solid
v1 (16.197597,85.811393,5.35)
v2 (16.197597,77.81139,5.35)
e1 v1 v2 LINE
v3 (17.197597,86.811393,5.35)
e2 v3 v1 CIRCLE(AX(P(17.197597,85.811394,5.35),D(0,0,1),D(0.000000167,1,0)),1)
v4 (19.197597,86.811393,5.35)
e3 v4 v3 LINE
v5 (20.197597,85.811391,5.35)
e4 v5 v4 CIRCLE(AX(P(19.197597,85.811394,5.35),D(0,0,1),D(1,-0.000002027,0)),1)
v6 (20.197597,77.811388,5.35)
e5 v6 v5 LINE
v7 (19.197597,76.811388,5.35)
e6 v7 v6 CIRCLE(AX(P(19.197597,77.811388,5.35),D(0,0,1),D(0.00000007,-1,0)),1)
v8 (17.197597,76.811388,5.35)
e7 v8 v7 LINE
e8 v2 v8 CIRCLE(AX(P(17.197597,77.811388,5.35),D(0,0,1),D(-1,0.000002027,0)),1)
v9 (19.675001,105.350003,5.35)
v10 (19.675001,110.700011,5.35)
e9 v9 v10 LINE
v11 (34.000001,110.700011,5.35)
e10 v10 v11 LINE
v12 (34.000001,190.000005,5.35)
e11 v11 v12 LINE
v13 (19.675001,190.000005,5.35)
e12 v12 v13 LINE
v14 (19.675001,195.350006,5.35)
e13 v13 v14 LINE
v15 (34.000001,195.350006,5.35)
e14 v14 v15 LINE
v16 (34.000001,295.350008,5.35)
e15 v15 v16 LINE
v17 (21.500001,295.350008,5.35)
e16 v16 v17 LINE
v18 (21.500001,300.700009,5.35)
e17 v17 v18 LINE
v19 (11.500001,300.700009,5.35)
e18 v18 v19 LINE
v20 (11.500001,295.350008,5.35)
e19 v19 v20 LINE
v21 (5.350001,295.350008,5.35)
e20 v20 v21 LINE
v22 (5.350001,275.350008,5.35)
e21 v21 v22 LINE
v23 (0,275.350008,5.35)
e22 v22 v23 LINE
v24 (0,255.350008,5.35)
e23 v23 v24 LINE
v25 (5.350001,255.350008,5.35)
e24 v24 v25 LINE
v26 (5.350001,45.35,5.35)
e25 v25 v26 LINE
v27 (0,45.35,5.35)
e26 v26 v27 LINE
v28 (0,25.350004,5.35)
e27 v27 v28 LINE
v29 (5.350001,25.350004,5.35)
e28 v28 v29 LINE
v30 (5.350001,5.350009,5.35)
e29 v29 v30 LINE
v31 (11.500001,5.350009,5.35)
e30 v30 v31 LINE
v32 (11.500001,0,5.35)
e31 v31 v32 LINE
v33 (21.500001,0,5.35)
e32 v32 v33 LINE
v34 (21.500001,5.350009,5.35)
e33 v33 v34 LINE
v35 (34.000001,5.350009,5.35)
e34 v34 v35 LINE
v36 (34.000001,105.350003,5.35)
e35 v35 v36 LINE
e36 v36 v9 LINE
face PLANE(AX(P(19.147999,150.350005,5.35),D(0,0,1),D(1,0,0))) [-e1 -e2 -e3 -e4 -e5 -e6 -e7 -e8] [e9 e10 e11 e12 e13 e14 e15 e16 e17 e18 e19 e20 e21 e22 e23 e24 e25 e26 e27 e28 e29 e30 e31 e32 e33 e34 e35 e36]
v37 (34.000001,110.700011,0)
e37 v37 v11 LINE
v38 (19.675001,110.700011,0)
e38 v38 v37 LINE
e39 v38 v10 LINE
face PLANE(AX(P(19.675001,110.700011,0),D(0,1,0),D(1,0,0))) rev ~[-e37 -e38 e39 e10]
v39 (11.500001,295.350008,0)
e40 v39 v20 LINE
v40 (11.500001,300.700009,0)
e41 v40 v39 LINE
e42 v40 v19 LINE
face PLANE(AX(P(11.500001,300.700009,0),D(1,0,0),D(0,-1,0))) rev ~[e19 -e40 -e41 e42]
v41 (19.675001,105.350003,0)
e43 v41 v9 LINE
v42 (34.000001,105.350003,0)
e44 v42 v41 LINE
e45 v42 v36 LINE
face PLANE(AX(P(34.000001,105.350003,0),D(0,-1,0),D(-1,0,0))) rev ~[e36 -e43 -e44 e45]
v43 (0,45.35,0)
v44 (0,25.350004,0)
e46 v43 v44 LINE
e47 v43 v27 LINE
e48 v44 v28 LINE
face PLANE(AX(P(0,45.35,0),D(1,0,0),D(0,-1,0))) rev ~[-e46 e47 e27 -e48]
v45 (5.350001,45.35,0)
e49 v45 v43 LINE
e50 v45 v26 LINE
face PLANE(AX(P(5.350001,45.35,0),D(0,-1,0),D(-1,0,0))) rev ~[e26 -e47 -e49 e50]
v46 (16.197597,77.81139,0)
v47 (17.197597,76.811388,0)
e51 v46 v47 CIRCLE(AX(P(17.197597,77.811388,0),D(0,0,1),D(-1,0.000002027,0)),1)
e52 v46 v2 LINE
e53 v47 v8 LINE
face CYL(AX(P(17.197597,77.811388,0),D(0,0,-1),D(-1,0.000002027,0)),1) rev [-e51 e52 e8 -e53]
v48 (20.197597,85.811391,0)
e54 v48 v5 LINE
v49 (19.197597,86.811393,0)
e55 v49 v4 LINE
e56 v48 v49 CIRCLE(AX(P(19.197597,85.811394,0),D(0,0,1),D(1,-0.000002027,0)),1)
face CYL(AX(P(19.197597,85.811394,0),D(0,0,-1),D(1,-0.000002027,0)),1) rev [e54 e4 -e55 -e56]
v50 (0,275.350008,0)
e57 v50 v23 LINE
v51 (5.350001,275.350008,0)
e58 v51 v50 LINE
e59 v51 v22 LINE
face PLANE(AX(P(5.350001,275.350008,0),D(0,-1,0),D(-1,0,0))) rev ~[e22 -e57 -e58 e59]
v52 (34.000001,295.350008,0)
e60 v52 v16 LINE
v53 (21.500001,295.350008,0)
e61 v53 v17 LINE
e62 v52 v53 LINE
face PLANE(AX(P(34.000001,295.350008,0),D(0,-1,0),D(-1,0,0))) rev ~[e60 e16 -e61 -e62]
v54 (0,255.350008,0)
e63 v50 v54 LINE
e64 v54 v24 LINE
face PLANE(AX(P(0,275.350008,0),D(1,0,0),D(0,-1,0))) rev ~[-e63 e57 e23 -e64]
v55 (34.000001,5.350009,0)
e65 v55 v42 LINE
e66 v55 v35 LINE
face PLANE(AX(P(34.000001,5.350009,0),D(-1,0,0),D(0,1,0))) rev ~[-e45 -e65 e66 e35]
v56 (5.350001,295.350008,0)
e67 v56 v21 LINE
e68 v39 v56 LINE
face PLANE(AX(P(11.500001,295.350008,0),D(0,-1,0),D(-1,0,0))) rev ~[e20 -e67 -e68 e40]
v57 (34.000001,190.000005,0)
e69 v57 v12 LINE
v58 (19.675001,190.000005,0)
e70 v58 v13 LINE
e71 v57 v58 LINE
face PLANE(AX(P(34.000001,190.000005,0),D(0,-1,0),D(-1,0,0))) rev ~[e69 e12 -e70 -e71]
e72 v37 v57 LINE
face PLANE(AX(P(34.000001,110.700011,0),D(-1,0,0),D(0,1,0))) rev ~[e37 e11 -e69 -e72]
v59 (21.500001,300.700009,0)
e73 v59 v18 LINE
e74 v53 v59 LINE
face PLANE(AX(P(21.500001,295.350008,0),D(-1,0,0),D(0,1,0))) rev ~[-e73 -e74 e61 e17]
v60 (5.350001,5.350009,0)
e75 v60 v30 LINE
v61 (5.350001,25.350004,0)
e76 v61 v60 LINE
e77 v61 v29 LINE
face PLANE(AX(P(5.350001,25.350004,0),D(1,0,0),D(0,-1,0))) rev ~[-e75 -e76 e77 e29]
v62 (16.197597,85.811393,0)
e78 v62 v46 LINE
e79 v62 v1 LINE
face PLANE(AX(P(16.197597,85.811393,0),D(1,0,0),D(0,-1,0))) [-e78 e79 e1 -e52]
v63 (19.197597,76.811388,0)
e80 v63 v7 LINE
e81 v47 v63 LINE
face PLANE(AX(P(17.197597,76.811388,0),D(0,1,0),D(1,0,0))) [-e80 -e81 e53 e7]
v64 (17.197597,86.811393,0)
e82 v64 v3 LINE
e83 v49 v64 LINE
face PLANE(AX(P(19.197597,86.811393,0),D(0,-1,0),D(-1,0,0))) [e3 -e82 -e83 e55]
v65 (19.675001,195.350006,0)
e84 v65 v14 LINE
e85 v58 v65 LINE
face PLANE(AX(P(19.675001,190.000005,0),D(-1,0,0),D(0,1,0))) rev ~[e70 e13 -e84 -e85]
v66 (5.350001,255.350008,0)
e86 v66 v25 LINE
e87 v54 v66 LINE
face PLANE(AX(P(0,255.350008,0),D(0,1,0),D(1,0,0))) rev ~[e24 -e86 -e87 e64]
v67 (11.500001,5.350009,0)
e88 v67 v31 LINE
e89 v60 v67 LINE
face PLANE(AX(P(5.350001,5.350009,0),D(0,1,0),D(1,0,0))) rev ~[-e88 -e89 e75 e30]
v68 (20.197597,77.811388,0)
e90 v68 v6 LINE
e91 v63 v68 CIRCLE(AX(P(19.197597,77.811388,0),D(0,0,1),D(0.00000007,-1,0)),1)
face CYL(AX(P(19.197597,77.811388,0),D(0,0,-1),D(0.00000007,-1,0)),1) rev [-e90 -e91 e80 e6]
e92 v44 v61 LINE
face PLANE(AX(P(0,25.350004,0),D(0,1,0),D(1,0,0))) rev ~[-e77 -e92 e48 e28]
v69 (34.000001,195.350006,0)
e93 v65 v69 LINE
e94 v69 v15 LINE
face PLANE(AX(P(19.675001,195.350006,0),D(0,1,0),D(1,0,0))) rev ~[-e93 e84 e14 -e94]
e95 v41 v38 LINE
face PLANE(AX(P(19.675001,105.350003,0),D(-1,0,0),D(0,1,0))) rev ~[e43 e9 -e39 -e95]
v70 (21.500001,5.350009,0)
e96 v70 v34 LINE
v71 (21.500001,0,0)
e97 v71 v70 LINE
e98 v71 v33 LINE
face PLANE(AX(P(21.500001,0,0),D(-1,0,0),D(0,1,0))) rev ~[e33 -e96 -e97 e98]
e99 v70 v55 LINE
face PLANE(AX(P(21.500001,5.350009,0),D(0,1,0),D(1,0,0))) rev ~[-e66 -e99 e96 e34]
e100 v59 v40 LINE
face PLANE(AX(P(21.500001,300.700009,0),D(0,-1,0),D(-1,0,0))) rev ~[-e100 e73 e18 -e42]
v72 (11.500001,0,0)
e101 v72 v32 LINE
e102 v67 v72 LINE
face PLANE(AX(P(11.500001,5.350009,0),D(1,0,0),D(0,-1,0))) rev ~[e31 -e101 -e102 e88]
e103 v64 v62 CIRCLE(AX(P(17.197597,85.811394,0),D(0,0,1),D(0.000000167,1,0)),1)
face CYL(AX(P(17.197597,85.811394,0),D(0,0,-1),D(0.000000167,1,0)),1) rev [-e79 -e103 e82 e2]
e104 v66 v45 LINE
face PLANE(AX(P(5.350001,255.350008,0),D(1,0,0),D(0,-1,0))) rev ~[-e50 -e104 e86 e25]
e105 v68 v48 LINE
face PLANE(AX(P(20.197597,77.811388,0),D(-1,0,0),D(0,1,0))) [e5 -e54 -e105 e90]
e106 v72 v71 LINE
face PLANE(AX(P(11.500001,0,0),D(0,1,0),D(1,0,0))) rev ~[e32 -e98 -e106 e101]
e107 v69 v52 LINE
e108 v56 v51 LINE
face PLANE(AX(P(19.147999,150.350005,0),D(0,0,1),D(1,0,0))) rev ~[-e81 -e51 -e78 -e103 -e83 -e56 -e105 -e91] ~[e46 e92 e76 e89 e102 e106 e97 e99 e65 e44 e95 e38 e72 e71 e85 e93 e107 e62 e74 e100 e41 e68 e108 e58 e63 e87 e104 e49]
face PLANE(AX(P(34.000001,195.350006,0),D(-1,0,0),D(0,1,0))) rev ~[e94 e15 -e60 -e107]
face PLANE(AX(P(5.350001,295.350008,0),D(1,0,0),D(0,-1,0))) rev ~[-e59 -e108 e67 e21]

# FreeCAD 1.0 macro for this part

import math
import FreeCAD as App
import Part
import Sketcher
from FreeCAD import Vector
Q = App.Units.Quantity

doc = App.newDocument("Part")
body = doc.addObject("PartDesign::Body", "Body")

sketch1 = doc.addObject("Sketcher::SketchObject", "Sketch")
body.addObject(sketch1)
sketch1.AttachmentSupport = (doc.XY_Plane, [""])
sketch1.MapMode = "FlatFace"
sketch1.addGeometry([
    Part.LineSegment(Vector(0, 25.350004, 0), Vector(5.350001, 25.350004, 0)),
    Part.LineSegment(Vector(5.350001, 25.350004, 0), Vector(5.350001, 5.350009, 0)),
    Part.LineSegment(Vector(5.350001, 5.350009, 0), Vector(11.500001, 5.350009, 0)),
    Part.LineSegment(Vector(11.500001, 5.350009, 0), Vector(11.500001, 0, 0)),
    Part.LineSegment(Vector(11.500001, 0, 0), Vector(21.500001, 0, 0)),
    Part.LineSegment(Vector(21.500001, 0, 0), Vector(21.500001, 5.350009, 0)),
    Part.LineSegment(Vector(21.500001, 5.350009, 0), Vector(34.000001, 5.350009, 0)),
    Part.LineSegment(Vector(34.000001, 5.350009, 0), Vector(34.000001, 105.350003, 0)),
    Part.LineSegment(Vector(34.000001, 105.350003, 0), Vector(19.675001, 105.350003, 0)),
    Part.LineSegment(Vector(19.675001, 105.350003, 0), Vector(19.675001, 110.700011, 0)),
    Part.LineSegment(Vector(19.675001, 110.700011, 0), Vector(34.000001, 110.700011, 0)),
    Part.LineSegment(Vector(34.000001, 110.700011, 0), Vector(34.000001, 190.000005, 0)),
    Part.LineSegment(Vector(34.000001, 190.000005, 0), Vector(19.675001, 190.000005, 0)),
    Part.LineSegment(Vector(19.675001, 190.000005, 0), Vector(19.675001, 195.350006, 0)),
    Part.LineSegment(Vector(19.675001, 195.350006, 0), Vector(34.000001, 195.350006, 0)),
    Part.LineSegment(Vector(34.000001, 195.350006, 0), Vector(34.000001, 295.350008, 0)),
    Part.LineSegment(Vector(34.000001, 295.350008, 0), Vector(21.500001, 295.350008, 0)),
    Part.LineSegment(Vector(21.500001, 295.350008, 0), Vector(21.500001, 300.700009, 0)),
    Part.LineSegment(Vector(21.500001, 300.700009, 0), Vector(11.500001, 300.700009, 0)),
    Part.LineSegment(Vector(11.500001, 300.700009, 0), Vector(11.500001, 295.350008, 0)),
    Part.LineSegment(Vector(11.500001, 295.350008, 0), Vector(5.350001, 295.350008, 0)),
    Part.LineSegment(Vector(5.350001, 295.350008, 0), Vector(5.350001, 275.350008, 0)),
    Part.LineSegment(Vector(5.350001, 275.350008, 0), Vector(0, 275.350008, 0)),
    Part.LineSegment(Vector(0, 275.350008, 0), Vector(0, 255.350008, 0)),
    Part.LineSegment(Vector(0, 255.350008, 0), Vector(5.350001, 255.350008, 0)),
    Part.LineSegment(Vector(5.350001, 255.350008, 0), Vector(5.350001, 45.35, 0)),
    Part.LineSegment(Vector(5.350001, 45.35, 0), Vector(0, 45.35, 0)),
    Part.LineSegment(Vector(0, 45.35, 0), Vector(0, 25.350004, 0)),
    Part.LineSegment(Vector(20.197597, 85.811391, 0), Vector(20.197597, 77.811388, 0)),
    Part.ArcOfCircle(Part.Circle(Vector(19.197597, 77.811388, 0), Vector(0, 0, 1), 1), math.radians(-89.999996), math.radians(0)),
    Part.LineSegment(Vector(19.197597, 76.811388, 0), Vector(17.197597, 76.811388, 0)),
    Part.ArcOfCircle(Part.Circle(Vector(17.197597, 77.811388, 0), Vector(0, 0, 1), 1), math.radians(179.999884), math.radians(270)),
    Part.LineSegment(Vector(16.197597, 77.81139, 0), Vector(16.197597, 85.811393, 0)),
    Part.ArcOfCircle(Part.Circle(Vector(17.197597, 85.811394, 0), Vector(0, 0, 1), 1), math.radians(89.99999), math.radians(180)),
    Part.LineSegment(Vector(17.197597, 86.811393, 0), Vector(19.197597, 86.811393, 0)),
    Part.ArcOfCircle(Part.Circle(Vector(19.197597, 85.811393, 0), Vector(0, 0, 1), 1), math.radians(-0.000116), math.radians(90)),
], False)
sketch1.addConstraint([
    Sketcher.Constraint("Coincident", 0, 2, 1, 1),
    Sketcher.Constraint("Coincident", 1, 2, 2, 1),
    Sketcher.Constraint("Coincident", 2, 2, 3, 1),
    Sketcher.Constraint("Coincident", 3, 2, 4, 1),
    Sketcher.Constraint("Coincident", 4, 2, 5, 1),
    Sketcher.Constraint("Coincident", 5, 2, 6, 1),
    Sketcher.Constraint("Coincident", 6, 2, 7, 1),
    Sketcher.Constraint("Coincident", 7, 2, 8, 1),
    Sketcher.Constraint("Coincident", 8, 2, 9, 1),
    Sketcher.Constraint("Coincident", 9, 2, 10, 1),
    Sketcher.Constraint("Coincident", 10, 2, 11, 1),
    Sketcher.Constraint("Coincident", 11, 2, 12, 1),
    Sketcher.Constraint("Coincident", 12, 2, 13, 1),
    Sketcher.Constraint("Coincident", 13, 2, 14, 1),
    Sketcher.Constraint("Coincident", 14, 2, 15, 1),
    Sketcher.Constraint("Coincident", 15, 2, 16, 1),
    Sketcher.Constraint("Coincident", 16, 2, 17, 1),
    Sketcher.Constraint("Coincident", 17, 2, 18, 1),
    Sketcher.Constraint("Coincident", 18, 2, 19, 1),
    Sketcher.Constraint("Coincident", 19, 2, 20, 1),
    Sketcher.Constraint("Coincident", 20, 2, 21, 1),
    Sketcher.Constraint("Coincident", 21, 2, 22, 1),
    Sketcher.Constraint("Coincident", 22, 2, 23, 1),
    Sketcher.Constraint("Coincident", 23, 2, 24, 1),
    Sketcher.Constraint("Coincident", 24, 2, 25, 1),
    Sketcher.Constraint("Coincident", 25, 2, 26, 1),
    Sketcher.Constraint("Coincident", 26, 2, 27, 1),
    Sketcher.Constraint("Coincident", 27, 2, 0, 1),
    Sketcher.Constraint("Tangent", 28, 2, 29, 2),
    Sketcher.Constraint("Tangent", 29, 1, 30, 1),
    Sketcher.Constraint("Tangent", 30, 2, 31, 2),
    Sketcher.Constraint("Coincident", 31, 1, 32, 1),
    Sketcher.Constraint("Tangent", 32, 2, 33, 2),
    Sketcher.Constraint("Tangent", 33, 1, 34, 1),
    Sketcher.Constraint("Tangent", 34, 2, 35, 2),
    Sketcher.Constraint("Coincident", 35, 1, 28, 1),
    Sketcher.Constraint("Horizontal", 0),
    Sketcher.Constraint("Vertical", 1),
    Sketcher.Constraint("Horizontal", 2),
    Sketcher.Constraint("Vertical", 3),
    Sketcher.Constraint("Horizontal", 4),
    Sketcher.Constraint("Vertical", 5),
    Sketcher.Constraint("Horizontal", 6),
    Sketcher.Constraint("Vertical", 7),
    Sketcher.Constraint("Horizontal", 8),
    Sketcher.Constraint("Vertical", 9),
    Sketcher.Constraint("Horizontal", 10),
    Sketcher.Constraint("Vertical", 11),
    Sketcher.Constraint("Horizontal", 12),
    Sketcher.Constraint("Vertical", 13),
    Sketcher.Constraint("Horizontal", 14),
    Sketcher.Constraint("Vertical", 15),
    Sketcher.Constraint("Horizontal", 16),
    Sketcher.Constraint("Vertical", 17),
    Sketcher.Constraint("Horizontal", 18),
    Sketcher.Constraint("Vertical", 19),
    Sketcher.Constraint("Horizontal", 20),
    Sketcher.Constraint("Vertical", 21),
    Sketcher.Constraint("Horizontal", 22),
    Sketcher.Constraint("Vertical", 23),
    Sketcher.Constraint("Horizontal", 24),
    Sketcher.Constraint("Vertical", 25),
    Sketcher.Constraint("Horizontal", 26),
    Sketcher.Constraint("Vertical", 27),
    Sketcher.Constraint("Vertical", 28),
    Sketcher.Constraint("Horizontal", 30),
    Sketcher.Constraint("Vertical", 32),
    Sketcher.Constraint("Horizontal", 34),
    Sketcher.Constraint("Equal", 29, 31),
    Sketcher.Constraint("Equal", 31, 33),
    Sketcher.Constraint("Equal", 33, 35),
    Sketcher.Constraint("PointOnObject", 3, 2, -1),
    Sketcher.Constraint("PointOnObject", 22, 2, -2),
    Sketcher.Constraint("PointOnObject", 26, 2, -2),
    Sketcher.Constraint("Horizontal", 2, 2, 5, 2),
    Sketcher.Constraint("Horizontal", 16, 2, 19, 2),
    Sketcher.Constraint("Vertical", 7, 2, 10, 2),
    Sketcher.Constraint("Vertical", 9, 2, 12, 2),
    Sketcher.Constraint("Vertical", 11, 2, 14, 2),
    Sketcher.Constraint("Vertical", 5, 2, 16, 2),
    Sketcher.Constraint("Vertical", 3, 2, 18, 2),
    Sketcher.Constraint("Vertical", 1, 2, 20, 2),
    Sketcher.Constraint("Vertical", 21, 2, 24, 2),
    Sketcher.Constraint("Equal", 5, 9),
    Sketcher.Constraint("Equal", 26, 13),
    Sketcher.Constraint("Equal", 13, 17),
    Sketcher.Constraint("Equal", 21, 23),
    Sketcher.Constraint("Equal", 1, 27),
    Sketcher.Constraint("Equal", 28, 32),
    Sketcher.Constraint("Radius", 29, Q("1 mm")),
    Sketcher.Constraint("DistanceX", 4, 1, 4, 2, Q("10 mm")),
    Sketcher.Constraint("DistanceX", 30, 2, 30, 1, Q("2 mm")),
    Sketcher.Constraint("DistanceY", 15, 1, 15, 2, Q("100.000001 mm")),
    Sketcher.Constraint("DistanceY", 21, 2, 21, 1, Q("20 mm")),
    Sketcher.Constraint("DistanceX", 6, 1, 6, 2, Q("12.5 mm")),
    Sketcher.Constraint("DistanceX", -1, 1, 6, 2, Q("34.000001 mm")),
    Sketcher.Constraint("DistanceY", 0, 2, 7, 2, Q("79.999998 mm")),
    Sketcher.Constraint("DistanceX", 0, 1, 0, 2, Q("5.350001 mm")),
    Sketcher.Constraint("DistanceX", 8, 2, 8, 1, Q("14.325 mm")),
    Sketcher.Constraint("DistanceY", -1, 1, 25, 2, Q("45.35 mm")),
    Sketcher.Constraint("DistanceY", 3, 2, 3, 1, Q("5.350009 mm")),
    Sketcher.Constraint("DistanceY", 11, 1, 11, 2, Q("79.299994 mm")),
    Sketcher.Constraint("DistanceY", 28, 2, 28, 1, Q("8.000003 mm")),
    Sketcher.Constraint("DistanceY", -1, 1, 29, 3, Q("77.811388 mm")),
    Sketcher.Constraint("DistanceY", -1, 1, 31, 1, Q("77.81139 mm")),
    Sketcher.Constraint("DistanceX", -1, 1, 29, 3, Q("19.197597 mm")),
])
pad1 = doc.addObject("PartDesign::Pad", "Pad")
body.addObject(pad1)
pad1.Profile = sketch1
pad1.Length = 5.35

doc.recompute()
